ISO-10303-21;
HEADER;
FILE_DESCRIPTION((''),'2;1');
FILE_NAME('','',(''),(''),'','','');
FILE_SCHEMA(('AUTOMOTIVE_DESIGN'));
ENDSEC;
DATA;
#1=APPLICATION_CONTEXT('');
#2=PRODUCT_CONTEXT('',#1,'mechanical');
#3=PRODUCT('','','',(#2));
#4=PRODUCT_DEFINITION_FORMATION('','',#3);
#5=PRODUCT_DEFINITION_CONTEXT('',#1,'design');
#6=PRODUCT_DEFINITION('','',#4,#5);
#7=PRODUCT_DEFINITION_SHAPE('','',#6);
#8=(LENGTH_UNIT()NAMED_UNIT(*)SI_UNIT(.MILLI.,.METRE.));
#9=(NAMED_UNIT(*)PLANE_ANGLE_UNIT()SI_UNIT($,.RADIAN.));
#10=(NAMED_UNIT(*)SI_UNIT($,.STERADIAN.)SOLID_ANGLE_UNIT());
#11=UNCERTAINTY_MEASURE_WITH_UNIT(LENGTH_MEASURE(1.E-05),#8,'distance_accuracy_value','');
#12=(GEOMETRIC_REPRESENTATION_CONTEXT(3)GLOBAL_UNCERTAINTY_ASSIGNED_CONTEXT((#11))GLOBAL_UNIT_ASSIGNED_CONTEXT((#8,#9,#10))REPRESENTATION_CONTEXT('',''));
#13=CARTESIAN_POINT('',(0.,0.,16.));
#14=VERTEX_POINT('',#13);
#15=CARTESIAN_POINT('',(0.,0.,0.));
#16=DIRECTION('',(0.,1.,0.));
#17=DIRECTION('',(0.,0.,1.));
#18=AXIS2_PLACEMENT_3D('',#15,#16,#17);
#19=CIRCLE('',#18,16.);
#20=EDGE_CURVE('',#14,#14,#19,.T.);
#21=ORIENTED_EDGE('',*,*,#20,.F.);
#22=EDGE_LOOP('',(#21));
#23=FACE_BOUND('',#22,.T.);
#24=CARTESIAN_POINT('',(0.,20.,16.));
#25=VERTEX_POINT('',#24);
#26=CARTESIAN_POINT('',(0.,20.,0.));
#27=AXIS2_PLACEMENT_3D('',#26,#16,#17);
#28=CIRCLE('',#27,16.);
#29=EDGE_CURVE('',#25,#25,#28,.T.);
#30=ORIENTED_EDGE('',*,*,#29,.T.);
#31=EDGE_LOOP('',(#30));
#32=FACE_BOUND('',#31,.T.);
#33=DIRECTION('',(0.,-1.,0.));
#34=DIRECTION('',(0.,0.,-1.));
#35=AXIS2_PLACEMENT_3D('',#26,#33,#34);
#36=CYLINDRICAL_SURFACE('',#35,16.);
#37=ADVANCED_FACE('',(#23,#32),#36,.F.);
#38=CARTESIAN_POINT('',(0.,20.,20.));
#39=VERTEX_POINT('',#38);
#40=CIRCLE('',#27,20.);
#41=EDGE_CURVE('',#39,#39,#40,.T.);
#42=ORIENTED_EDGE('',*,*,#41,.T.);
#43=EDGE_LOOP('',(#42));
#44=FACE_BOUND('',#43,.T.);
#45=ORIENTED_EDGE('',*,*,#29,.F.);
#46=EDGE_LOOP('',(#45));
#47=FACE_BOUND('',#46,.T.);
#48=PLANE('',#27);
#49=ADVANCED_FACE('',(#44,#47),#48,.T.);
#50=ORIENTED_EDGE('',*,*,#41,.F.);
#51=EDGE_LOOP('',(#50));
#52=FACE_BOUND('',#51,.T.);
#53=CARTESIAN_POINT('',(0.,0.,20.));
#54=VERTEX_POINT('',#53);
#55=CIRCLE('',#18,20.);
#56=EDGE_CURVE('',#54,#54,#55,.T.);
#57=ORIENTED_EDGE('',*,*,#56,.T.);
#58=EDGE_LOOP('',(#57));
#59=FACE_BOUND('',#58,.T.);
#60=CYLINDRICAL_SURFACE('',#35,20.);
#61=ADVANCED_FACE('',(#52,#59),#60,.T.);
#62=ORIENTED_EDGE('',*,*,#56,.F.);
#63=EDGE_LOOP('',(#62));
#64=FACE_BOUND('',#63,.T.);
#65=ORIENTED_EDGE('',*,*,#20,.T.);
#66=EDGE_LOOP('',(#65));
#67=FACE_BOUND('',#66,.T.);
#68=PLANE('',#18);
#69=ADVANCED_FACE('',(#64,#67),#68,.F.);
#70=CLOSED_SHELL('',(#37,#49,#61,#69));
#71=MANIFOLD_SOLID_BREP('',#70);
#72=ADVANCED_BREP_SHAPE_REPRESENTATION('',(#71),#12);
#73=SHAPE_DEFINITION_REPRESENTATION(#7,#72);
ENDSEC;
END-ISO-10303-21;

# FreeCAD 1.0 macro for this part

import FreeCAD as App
import Part
import Sketcher
from FreeCAD import Vector

doc = App.newDocument("Part")
body = doc.addObject("PartDesign::Body", "Body")

sketch1 = doc.addObject("Sketcher::SketchObject", "Sketch")
body.addObject(sketch1)
sketch1.AttachmentSupport = (doc.XZ_Plane, [""])
sketch1.MapMode = "FlatFace"
sketch1.addGeometry([
    Part.Circle(Vector(0, 0, 0), Vector(0, 0, 1), 20),
    Part.Circle(Vector(0, 0, 0), Vector(0, 0, 1), 16),
], False)
sketch1.addConstraint([
    Sketcher.Constraint("Coincident", 0, 3, -1, 1),
    Sketcher.Constraint("Coincident", 1, 3, -1, 1),
    Sketcher.Constraint("Diameter", 0, 40.0),
    Sketcher.Constraint("Diameter", 1, 32.0),
])
pad1 = doc.addObject("PartDesign::Pad", "Pad")
body.addObject(pad1)
pad1.Profile = sketch1
pad1.Length = 20
pad1.Reversed = True

doc.recompute()
